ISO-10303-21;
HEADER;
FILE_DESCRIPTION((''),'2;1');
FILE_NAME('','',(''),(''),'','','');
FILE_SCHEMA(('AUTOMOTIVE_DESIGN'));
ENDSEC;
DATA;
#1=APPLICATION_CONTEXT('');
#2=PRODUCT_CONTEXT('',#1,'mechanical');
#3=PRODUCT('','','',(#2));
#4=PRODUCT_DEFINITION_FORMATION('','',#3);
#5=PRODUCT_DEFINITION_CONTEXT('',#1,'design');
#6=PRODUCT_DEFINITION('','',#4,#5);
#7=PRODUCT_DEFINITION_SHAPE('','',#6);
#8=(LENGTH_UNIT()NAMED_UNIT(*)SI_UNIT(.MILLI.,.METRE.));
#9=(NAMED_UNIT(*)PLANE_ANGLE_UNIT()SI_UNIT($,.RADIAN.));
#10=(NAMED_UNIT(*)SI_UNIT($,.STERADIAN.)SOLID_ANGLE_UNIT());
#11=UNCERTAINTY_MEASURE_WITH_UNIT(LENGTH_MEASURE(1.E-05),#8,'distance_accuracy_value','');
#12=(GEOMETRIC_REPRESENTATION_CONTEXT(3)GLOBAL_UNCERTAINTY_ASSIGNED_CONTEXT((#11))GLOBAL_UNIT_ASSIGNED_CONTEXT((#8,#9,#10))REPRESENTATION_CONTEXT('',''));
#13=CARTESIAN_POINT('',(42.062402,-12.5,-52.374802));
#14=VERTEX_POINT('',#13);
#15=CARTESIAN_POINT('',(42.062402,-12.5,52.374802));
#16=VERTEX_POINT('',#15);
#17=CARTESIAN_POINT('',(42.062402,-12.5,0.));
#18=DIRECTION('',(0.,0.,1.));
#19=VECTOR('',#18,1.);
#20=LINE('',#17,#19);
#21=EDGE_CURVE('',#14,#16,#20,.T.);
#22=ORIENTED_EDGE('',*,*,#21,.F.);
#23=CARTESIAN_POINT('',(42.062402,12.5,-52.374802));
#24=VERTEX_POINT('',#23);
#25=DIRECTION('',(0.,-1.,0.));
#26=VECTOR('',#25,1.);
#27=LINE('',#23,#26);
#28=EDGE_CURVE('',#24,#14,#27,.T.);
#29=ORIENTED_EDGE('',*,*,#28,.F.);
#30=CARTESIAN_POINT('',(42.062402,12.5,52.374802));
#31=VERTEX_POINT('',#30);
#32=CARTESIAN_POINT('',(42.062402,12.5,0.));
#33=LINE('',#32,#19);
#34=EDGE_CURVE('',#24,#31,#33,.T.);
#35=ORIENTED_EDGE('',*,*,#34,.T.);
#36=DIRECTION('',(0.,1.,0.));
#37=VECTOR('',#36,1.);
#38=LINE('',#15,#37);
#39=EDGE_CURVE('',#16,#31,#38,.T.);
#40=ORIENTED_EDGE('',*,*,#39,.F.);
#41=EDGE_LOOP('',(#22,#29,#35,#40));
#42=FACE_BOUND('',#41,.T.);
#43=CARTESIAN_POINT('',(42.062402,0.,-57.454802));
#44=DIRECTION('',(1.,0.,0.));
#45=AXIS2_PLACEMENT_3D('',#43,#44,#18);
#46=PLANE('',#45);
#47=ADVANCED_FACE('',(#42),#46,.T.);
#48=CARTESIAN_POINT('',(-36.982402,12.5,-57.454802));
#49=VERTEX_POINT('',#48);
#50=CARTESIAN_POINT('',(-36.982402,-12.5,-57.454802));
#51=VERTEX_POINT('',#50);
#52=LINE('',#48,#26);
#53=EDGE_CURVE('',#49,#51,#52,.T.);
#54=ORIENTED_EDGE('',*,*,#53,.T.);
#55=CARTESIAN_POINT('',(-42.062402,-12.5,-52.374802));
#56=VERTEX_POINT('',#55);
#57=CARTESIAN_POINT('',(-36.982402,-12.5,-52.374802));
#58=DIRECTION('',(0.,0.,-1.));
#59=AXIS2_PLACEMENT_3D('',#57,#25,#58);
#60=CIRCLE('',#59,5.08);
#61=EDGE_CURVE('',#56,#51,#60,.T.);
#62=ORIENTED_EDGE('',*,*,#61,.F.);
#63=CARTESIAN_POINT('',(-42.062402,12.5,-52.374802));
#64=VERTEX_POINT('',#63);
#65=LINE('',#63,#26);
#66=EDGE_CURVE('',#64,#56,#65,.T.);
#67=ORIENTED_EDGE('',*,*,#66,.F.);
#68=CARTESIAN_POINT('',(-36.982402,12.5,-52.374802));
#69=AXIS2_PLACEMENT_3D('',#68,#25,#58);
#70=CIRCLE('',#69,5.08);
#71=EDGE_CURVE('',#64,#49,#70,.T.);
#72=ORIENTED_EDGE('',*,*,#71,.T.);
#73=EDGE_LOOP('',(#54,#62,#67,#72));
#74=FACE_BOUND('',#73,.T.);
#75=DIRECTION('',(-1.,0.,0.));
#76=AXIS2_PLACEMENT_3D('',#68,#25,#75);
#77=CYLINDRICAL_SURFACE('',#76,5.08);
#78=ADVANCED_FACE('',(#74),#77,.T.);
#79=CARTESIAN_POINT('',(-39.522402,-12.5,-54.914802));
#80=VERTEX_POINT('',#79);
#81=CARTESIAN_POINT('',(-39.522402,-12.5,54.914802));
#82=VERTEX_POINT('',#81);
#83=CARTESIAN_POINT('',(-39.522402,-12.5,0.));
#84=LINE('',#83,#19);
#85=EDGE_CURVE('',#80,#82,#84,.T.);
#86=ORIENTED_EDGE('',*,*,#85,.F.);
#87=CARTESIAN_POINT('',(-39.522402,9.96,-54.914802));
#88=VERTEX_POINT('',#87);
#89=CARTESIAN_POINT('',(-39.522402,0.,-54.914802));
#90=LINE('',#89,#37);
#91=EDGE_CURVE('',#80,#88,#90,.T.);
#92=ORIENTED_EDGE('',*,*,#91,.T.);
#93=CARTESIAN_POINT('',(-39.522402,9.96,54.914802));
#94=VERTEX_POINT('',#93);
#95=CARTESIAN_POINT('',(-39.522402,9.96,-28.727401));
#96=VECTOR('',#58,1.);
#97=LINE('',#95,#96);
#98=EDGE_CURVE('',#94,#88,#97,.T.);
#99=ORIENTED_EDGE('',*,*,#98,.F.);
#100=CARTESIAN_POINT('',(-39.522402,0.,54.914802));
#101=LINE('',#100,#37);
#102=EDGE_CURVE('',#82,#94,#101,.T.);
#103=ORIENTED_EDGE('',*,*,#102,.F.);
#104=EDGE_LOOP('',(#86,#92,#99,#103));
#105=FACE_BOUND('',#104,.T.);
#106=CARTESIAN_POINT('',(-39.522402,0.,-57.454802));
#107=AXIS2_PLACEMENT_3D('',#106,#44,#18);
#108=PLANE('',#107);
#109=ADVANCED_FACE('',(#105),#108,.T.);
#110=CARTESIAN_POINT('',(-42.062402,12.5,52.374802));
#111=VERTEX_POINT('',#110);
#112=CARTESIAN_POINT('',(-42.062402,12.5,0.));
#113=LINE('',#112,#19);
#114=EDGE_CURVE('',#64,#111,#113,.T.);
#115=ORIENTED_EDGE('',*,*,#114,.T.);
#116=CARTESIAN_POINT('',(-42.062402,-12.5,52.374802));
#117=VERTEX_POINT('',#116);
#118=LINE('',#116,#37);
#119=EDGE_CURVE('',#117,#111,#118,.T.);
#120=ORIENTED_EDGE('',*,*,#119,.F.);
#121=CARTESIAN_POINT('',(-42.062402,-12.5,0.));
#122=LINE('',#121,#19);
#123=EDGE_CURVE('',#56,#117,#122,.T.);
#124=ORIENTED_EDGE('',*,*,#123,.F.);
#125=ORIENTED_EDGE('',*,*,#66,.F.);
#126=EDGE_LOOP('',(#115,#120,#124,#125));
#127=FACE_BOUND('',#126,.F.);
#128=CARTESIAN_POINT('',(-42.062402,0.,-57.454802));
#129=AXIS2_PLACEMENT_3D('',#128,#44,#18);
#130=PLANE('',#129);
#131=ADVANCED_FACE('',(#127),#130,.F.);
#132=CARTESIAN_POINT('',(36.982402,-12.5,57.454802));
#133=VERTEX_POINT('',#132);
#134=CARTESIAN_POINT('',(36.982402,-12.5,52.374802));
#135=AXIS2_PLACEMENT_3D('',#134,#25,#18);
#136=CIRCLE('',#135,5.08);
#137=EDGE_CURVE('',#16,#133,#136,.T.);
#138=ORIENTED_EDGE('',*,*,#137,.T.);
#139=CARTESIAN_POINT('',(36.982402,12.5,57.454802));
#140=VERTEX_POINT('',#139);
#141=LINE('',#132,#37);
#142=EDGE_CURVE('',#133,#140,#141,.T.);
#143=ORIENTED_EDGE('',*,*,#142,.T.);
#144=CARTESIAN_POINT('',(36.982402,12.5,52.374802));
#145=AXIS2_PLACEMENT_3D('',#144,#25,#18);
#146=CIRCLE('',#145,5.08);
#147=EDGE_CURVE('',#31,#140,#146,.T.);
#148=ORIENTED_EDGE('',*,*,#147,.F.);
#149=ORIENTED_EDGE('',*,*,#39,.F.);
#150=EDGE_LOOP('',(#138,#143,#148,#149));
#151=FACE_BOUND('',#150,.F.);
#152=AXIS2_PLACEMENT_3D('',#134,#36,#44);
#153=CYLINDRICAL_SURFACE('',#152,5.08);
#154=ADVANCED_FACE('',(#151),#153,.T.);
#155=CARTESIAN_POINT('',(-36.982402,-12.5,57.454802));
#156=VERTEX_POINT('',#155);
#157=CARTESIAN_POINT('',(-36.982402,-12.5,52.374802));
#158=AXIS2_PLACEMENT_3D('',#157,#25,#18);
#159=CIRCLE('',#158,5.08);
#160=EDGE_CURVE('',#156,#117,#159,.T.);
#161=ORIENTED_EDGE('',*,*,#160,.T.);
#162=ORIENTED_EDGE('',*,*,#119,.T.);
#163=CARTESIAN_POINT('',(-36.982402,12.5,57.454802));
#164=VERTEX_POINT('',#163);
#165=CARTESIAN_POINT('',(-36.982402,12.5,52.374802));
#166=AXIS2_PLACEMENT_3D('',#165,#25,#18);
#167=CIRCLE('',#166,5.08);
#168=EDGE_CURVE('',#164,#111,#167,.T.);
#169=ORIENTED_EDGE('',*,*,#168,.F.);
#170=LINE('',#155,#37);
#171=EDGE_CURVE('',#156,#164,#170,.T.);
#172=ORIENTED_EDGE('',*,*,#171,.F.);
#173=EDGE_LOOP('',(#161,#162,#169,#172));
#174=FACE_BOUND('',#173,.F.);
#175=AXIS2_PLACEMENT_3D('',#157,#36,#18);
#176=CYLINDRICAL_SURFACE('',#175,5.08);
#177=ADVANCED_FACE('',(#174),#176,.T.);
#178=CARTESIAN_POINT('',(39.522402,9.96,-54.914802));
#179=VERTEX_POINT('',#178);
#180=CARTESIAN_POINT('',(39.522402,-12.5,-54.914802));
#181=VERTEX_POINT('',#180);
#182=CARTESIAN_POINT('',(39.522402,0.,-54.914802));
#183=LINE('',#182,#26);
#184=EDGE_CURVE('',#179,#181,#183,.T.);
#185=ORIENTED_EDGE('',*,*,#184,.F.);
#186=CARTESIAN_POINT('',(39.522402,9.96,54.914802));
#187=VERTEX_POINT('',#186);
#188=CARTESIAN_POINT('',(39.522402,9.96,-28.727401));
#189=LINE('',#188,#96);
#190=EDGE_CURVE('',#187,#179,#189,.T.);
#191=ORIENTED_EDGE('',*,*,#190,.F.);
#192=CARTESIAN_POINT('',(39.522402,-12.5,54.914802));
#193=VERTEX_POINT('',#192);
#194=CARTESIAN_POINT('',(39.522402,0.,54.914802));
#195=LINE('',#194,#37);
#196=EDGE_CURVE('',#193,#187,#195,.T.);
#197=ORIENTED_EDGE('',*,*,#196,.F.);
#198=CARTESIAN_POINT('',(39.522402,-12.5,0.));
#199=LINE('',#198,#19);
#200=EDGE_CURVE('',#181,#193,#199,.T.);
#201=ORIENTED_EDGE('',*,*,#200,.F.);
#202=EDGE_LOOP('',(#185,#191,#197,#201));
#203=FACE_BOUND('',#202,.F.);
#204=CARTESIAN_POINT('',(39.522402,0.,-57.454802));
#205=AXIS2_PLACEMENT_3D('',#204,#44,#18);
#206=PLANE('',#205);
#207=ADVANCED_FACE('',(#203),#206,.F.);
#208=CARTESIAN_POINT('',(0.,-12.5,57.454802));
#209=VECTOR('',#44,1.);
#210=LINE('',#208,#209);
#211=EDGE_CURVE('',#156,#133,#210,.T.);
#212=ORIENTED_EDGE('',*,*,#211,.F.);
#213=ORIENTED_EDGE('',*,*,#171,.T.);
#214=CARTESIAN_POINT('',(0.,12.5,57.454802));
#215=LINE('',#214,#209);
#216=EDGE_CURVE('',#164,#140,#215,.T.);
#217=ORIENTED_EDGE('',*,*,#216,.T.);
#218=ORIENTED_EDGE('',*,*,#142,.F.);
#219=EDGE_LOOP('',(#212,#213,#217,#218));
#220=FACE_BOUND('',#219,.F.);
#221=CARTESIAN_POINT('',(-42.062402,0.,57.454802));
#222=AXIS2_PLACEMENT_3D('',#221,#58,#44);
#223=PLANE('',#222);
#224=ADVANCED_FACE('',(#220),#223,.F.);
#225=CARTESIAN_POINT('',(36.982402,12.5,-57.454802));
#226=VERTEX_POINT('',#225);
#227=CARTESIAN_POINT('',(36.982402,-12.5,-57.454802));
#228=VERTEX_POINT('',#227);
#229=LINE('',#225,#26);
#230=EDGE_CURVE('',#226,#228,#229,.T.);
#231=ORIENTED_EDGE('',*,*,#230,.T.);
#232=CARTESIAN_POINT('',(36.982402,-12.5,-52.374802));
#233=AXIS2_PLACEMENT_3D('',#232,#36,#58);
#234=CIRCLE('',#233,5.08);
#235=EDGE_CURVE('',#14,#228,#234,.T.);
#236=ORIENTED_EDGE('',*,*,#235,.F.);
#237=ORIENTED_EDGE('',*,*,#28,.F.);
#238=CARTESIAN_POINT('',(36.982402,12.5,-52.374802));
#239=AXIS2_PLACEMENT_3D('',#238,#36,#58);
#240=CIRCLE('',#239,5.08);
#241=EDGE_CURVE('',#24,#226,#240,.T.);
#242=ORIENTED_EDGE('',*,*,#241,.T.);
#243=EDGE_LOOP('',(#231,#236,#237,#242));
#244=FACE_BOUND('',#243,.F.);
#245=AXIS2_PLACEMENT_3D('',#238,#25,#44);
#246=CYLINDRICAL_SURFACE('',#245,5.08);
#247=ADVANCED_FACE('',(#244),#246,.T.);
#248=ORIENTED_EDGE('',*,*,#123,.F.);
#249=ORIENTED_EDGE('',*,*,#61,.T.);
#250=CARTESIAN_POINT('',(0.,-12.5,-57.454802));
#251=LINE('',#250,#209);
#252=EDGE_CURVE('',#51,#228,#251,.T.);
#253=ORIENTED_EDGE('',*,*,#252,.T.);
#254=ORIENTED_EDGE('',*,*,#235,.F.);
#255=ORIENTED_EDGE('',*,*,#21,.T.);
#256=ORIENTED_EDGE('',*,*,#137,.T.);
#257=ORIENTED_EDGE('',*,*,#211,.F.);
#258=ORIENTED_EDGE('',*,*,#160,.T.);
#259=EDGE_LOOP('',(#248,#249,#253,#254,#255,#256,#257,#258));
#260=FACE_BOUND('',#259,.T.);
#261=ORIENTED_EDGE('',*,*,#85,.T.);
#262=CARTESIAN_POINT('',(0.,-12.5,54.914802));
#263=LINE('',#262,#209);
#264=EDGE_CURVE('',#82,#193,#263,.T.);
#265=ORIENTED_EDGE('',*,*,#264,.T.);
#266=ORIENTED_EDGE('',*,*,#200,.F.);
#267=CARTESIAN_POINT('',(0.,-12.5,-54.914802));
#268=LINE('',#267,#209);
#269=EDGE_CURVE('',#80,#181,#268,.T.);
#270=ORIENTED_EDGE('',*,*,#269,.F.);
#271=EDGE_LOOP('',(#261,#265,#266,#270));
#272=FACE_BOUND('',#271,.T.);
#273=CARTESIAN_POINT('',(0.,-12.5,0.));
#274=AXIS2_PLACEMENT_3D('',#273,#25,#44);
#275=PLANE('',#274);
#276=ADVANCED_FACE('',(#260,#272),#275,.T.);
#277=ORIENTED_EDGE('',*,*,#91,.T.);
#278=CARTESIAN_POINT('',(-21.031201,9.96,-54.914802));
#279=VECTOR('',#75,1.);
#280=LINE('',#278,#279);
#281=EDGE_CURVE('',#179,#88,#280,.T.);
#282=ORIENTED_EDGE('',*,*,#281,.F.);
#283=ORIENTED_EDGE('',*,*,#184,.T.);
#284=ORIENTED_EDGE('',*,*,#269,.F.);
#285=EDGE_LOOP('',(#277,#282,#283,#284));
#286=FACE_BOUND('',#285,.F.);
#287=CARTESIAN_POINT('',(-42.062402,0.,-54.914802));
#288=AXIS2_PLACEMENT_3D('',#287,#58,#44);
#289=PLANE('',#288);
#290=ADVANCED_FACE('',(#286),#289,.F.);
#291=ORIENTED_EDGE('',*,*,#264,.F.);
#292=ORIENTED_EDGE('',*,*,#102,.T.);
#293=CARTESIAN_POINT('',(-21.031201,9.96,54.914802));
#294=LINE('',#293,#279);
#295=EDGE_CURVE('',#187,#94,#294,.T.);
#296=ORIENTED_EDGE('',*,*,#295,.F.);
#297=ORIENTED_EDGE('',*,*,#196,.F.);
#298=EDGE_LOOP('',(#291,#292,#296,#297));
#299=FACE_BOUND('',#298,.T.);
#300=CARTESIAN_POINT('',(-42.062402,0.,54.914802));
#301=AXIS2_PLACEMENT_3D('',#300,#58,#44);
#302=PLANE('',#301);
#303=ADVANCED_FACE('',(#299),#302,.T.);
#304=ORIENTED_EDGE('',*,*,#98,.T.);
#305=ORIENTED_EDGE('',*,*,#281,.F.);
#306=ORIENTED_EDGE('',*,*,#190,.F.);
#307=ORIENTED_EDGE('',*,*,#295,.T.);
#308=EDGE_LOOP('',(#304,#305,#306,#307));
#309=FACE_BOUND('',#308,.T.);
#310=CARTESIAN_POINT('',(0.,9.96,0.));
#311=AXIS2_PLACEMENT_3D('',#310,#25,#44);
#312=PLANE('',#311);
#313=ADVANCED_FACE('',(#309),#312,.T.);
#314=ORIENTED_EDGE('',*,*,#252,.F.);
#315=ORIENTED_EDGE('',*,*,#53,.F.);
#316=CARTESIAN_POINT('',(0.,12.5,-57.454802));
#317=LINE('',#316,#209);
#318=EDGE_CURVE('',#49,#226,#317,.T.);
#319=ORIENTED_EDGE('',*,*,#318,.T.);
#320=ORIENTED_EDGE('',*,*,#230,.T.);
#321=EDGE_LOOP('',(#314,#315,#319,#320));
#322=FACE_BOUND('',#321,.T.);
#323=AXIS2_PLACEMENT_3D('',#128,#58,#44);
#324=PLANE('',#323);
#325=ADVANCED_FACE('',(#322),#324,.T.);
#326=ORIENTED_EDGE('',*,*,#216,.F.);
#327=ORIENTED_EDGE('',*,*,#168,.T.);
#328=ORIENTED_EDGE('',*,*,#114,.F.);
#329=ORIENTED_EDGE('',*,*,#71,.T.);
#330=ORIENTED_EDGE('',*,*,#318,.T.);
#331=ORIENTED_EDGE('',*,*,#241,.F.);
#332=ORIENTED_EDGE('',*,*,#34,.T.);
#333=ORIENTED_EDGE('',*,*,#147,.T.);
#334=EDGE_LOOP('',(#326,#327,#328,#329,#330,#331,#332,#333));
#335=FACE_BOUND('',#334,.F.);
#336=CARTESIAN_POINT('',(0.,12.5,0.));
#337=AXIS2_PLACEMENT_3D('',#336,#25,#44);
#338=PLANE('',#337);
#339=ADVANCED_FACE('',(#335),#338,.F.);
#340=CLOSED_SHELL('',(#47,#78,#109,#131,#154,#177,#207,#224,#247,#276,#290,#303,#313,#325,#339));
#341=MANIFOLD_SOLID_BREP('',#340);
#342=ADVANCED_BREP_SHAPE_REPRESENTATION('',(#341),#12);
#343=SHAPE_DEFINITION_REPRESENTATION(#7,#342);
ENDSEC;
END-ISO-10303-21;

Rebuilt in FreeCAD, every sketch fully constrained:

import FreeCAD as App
import Part
import Sketcher
Q = App.Units.Quantity


def edges_at(feature, points):
    """Names of the edges that pass closest to the given points."""
    edges = feature.Shape.Edges
    near = lambda p: min(range(len(edges)), key=lambda i: edges[i].distToShape(Part.Vertex(*p))[0])
    return sorted({f"Edge{near(p) + 1}" for p in points})


def faces_at(feature, points):
    """Names of the faces that lie closest to the given points."""
    faces = feature.Shape.Faces
    near = lambda p: min(range(len(faces)), key=lambda i: faces[i].distToShape(Part.Vertex(*p))[0])
    return sorted({f"Face{near(p) + 1}" for p in points})

doc = App.newDocument("Part")
body = doc.addObject("PartDesign::Body", "Body")

sketch1 = doc.addObject("Sketcher::SketchObject", "Sketch")
body.addObject(sketch1)
sketch1.AttachmentSupport = (doc.XZ_Plane, [""])
sketch1.MapMode = "FlatFace"
sketch1.addGeometry(Part.LineSegment(App.Vector(-42, 57, 0), App.Vector(-42, -57, 0)), False)
sketch1.addGeometry(Part.LineSegment(App.Vector(-42, -57, 0), App.Vector(42, -57, 0)), False)
sketch1.addGeometry(Part.LineSegment(App.Vector(42, -57, 0), App.Vector(42, 57, 0)), False)
sketch1.addGeometry(Part.LineSegment(App.Vector(42, 57, 0), App.Vector(-42, 57, 0)), False)
sketch1.addConstraint(Sketcher.Constraint("Coincident", 0, 2, 1, 1))
sketch1.addConstraint(Sketcher.Constraint("Coincident", 1, 2, 2, 1))
sketch1.addConstraint(Sketcher.Constraint("Coincident", 2, 2, 3, 1))
sketch1.addConstraint(Sketcher.Constraint("Coincident", 3, 2, 0, 1))
sketch1.addConstraint(Sketcher.Constraint("Vertical", 0))
sketch1.addConstraint(Sketcher.Constraint("Horizontal", 1))
sketch1.addConstraint(Sketcher.Constraint("Vertical", 2))
sketch1.addConstraint(Sketcher.Constraint("Horizontal", 3))
sketch1.addConstraint(Sketcher.Constraint("Symmetric", 0, 2, 2, 2, -1, 1))
sketch1.addConstraint(Sketcher.Constraint("DistanceX", 1, 1, 1, 2, Q("3.3120002 in")))
sketch1.addConstraint(Sketcher.Constraint("DistanceY", 0, 2, 0, 1, Q("4.5240002 in")))
pad1 = doc.addObject("PartDesign::Pad", "Pad")
body.addObject(pad1)
pad1.Profile = sketch1
pad1.Length = 25
pad1.Midplane = True
doc.recompute()

thickness = doc.addObject("PartDesign::Thickness", "Thickness")
body.addObject(thickness)
thickness.Base = (pad1, faces_at(pad1, [(0, -12.5, 0)]))
thickness.Value = Q("0.1 in")
thickness.Reversed = True
thickness.Join = "Arc"
doc.recompute()

fillet = doc.addObject("PartDesign::Fillet", "Fillet")
body.addObject(fillet)
fillet.Base = (thickness, edges_at(thickness, [
    (-42.062, 0, 57.455),
    (-42.062, 0, -57.455),
    (42.062, 0, 57.455),
    (42.062, 0, -57.455),
]))
fillet.Radius = Q("0.2 in")

doc.recompute()
